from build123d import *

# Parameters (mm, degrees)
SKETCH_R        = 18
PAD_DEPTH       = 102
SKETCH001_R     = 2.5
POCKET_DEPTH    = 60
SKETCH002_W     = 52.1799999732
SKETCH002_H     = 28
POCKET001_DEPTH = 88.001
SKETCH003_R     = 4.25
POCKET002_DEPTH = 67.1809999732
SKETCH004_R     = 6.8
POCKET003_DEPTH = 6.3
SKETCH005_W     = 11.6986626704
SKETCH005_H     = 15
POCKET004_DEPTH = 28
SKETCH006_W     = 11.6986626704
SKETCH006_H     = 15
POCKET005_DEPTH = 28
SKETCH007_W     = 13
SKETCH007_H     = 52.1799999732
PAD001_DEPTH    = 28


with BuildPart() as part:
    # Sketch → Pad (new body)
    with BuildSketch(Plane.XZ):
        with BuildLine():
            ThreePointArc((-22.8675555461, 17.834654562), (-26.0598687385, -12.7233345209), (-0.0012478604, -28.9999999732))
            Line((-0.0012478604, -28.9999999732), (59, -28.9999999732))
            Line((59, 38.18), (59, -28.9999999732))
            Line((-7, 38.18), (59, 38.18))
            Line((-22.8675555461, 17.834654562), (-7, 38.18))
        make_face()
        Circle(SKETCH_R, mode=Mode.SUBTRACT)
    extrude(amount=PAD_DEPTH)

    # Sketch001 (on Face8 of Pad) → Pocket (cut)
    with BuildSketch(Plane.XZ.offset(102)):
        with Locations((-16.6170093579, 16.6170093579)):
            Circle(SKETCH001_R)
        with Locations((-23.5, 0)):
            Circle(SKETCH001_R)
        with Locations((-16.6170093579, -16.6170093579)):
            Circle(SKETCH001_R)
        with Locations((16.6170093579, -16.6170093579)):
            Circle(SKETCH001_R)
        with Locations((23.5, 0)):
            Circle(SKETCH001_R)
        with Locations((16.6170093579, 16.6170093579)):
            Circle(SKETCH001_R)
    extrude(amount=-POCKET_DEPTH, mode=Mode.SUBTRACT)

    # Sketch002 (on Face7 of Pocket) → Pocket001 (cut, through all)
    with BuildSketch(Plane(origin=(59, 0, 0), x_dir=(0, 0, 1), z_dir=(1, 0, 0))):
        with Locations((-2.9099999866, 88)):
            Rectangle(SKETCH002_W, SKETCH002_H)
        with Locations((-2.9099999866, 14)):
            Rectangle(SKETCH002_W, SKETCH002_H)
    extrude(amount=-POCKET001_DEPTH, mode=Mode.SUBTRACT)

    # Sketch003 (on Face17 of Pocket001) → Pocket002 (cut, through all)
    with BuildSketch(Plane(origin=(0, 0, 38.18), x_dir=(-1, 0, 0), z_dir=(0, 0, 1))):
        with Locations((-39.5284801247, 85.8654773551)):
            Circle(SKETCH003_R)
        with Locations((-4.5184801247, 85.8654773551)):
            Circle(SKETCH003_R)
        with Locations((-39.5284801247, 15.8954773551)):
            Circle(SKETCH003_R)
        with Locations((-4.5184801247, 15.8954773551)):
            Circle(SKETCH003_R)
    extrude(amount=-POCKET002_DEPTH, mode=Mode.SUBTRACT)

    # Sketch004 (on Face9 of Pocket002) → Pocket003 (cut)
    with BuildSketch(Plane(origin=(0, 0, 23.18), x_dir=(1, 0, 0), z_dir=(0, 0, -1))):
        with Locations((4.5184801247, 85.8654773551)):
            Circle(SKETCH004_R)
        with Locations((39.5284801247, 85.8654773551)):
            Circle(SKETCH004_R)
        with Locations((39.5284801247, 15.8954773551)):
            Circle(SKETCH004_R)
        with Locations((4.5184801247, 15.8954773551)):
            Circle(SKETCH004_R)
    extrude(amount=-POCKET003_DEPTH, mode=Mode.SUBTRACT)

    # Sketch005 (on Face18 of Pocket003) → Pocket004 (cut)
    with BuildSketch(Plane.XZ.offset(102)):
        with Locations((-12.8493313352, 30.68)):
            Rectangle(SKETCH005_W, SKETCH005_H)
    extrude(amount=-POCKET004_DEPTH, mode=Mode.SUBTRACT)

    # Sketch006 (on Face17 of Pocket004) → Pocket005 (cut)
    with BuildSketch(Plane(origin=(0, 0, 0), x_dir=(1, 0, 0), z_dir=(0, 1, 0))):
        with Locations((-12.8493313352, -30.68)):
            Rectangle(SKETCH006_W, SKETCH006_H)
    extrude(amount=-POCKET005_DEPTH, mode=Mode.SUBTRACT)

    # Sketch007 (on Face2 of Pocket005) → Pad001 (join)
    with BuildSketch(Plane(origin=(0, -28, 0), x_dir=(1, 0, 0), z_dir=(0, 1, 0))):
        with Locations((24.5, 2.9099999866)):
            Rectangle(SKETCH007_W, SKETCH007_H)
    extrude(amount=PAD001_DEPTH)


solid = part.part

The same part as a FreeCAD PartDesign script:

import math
import FreeCAD as App
import Part
import Sketcher
Q = App.Units.Quantity


def add_polygon(sketch, points):
    """Adds a closed chain of lines whose ends are joined by coincident constraints."""
    first, n = sketch.GeometryCount, len(points)
    for a, b in zip(points, points[1:] + points[:1]):
        sketch.addGeometry(Part.LineSegment(App.Vector(*a, 0), App.Vector(*b, 0)), False)
    for i in range(n):
        sketch.addConstraint(Sketcher.Constraint("Coincident", first + i, 2, first + (i + 1) % n, 1))

doc = App.newDocument("Part")
body = doc.addObject("PartDesign::Body", "Body")

# Sketch on XZ plane
sketch1 = doc.addObject("Sketcher::SketchObject", "Sketch")
body.addObject(sketch1)
sketch1.AttachmentSupport = (doc.XZ_Plane, [""])
sketch1.MapMode = "FlatFace"
sketch1.addGeometry([
    Part.ArcOfCircle(Part.Circle(App.Vector(0, 0, 0), App.Vector(0, 0, 1), 29), math.radians(142.048945), math.radians(269.997535)),  # 0
    Part.LineSegment(App.Vector(-0.001248, -29, 0), App.Vector(59, -29, 0)),  # 1
    Part.LineSegment(App.Vector(59, -29, 0), App.Vector(59, 38.18, 0)),  # 2
    Part.LineSegment(App.Vector(59, 38.18, 0), App.Vector(-7, 38.18, 0)),  # 3
    Part.LineSegment(App.Vector(-7, 38.18, 0), App.Vector(-22.867556, 17.834655, 0)),  # 4
    Part.Circle(App.Vector(0, 0, 0), App.Vector(0, 0, 1), 18),  # 5
], False)
sketch1.addConstraint([
    Sketcher.Constraint("Coincident", 0, 2, 1, 1),
    Sketcher.Constraint("Coincident", 1, 2, 2, 1),
    Sketcher.Constraint("Coincident", 2, 2, 3, 1),
    Sketcher.Constraint("Coincident", 3, 2, 4, 1),
    Sketcher.Constraint("Tangent", 4, 2, 0, 1),
    Sketcher.Constraint("Horizontal", 1),
    Sketcher.Constraint("Vertical", 2),
    Sketcher.Constraint("Horizontal", 3),
    Sketcher.Constraint("Coincident", 0, 3, -1, 1),
    Sketcher.Constraint("Coincident", 5, 3, -1, 1),
    Sketcher.Constraint("Diameter", 5, Q("36 mm")),
    Sketcher.Constraint("Radius", 0, Q("29 mm")),
    Sketcher.Constraint("DistanceX", 3, 2, 3, 1, Q("66 mm")),
    Sketcher.Constraint("DistanceX", -1, 1, 1, 2, Q("59 mm")),
    Sketcher.Constraint("DistanceY", 2, 1, 2, 2, Q("67.18 mm")),
    Sketcher.Constraint("DistanceX", 1, 1, 1, 2, Q("59.001248 mm")),
])
pad1 = doc.addObject("PartDesign::Pad", "Pad")
body.addObject(pad1)
pad1.Profile = sketch1
pad1.Length = 102

# Sketch on XZ plane
sketch2 = doc.addObject("Sketcher::SketchObject", "Sketch001")
body.addObject(sketch2)
sketch2.AttachmentSupport = (doc.XZ_Plane, [""])
sketch2.MapMode = "FlatFace"
sketch2.AttachmentOffset = App.Placement(App.Vector(0, 0, 102), App.Rotation())
sketch2.addGeometry([
    Part.Circle(App.Vector(-16.617009, 16.617009, 0), App.Vector(0, 0, 1), 2.5),  # 0
    Part.Circle(App.Vector(-23.5, 0, 0), App.Vector(0, 0, 1), 2.5),  # 1
    Part.Circle(App.Vector(-16.617009, -16.617009, 0), App.Vector(0, 0, 1), 2.5),  # 2
    Part.Circle(App.Vector(16.617009, -16.617009, 0), App.Vector(0, 0, 1), 2.5),  # 3
    Part.Circle(App.Vector(23.5, 0, 0), App.Vector(0, 0, 1), 2.5),  # 4
    Part.Circle(App.Vector(16.617009, 16.617009, 0), App.Vector(0, 0, 1), 2.5),  # 5
], False)
sketch2.addConstraint([
    Sketcher.Constraint("Equal", 0, 1),
    Sketcher.Constraint("Equal", 1, 2),
    Sketcher.Constraint("Equal", 2, 3),
    Sketcher.Constraint("Equal", 3, 4),
    Sketcher.Constraint("Equal", 4, 5),
    Sketcher.Constraint("Symmetric", 0, 3, 3, 3, -1, 1),
    Sketcher.Constraint("Symmetric", 1, 3, 4, 3, -1, 1),
    Sketcher.Constraint("Symmetric", 2, 3, 5, 3, -1, 1),
    Sketcher.Constraint("Symmetric", 2, 3, 3, 3, -2),
    Sketcher.Constraint("PointOnObject", 1, 3, -1),
    Sketcher.Constraint("Diameter", 0, Q("5 mm")),
    Sketcher.Constraint("DistanceX", 1, 3, 4, 3, Q("47 mm")),
    Sketcher.Constraint("DistanceX", 0, 3, -1, 1, Q("16.617009 mm")),
    Sketcher.Constraint("DistanceY", -1, 1, 0, 3, Q("16.617009 mm")),
])
pocket1 = doc.addObject("PartDesign::Pocket", "Pocket")
body.addObject(pocket1)
pocket1.Profile = sketch2
pocket1.Length = 60

# Sketch on YZ plane
sketch3 = doc.addObject("Sketcher::SketchObject", "Sketch002")
body.addObject(sketch3)
sketch3.AttachmentSupport = (doc.YZ_Plane, [""])
sketch3.MapMode = "FlatFace"
sketch3.AttachmentOffset = App.Placement(App.Vector(0, 0, 59), App.Rotation())
add_polygon(sketch3, [(-102, -29), (-74, -29), (-74, 23.18), (-102, 23.18)])  # lines 0-3
add_polygon(sketch3, [(-28, -29), (0, -29), (0, 23.18), (-28, 23.18)])  # lines 4-7
sketch3.addConstraint([
    Sketcher.Constraint("Horizontal", 0),
    Sketcher.Constraint("Vertical", 1),
    Sketcher.Constraint("Horizontal", 2),
    Sketcher.Constraint("Vertical", 3),
    Sketcher.Constraint("Horizontal", 4),
    Sketcher.Constraint("Vertical", 5),
    Sketcher.Constraint("Horizontal", 6),
    Sketcher.Constraint("Vertical", 7),
    Sketcher.Constraint("PointOnObject", 4, 2, -2),
    Sketcher.Constraint("Horizontal", 3, 2, 4, 2),
    Sketcher.Constraint("Horizontal", 2, 2, 5, 2),
    Sketcher.Constraint("Equal", 2, 4),
    Sketcher.Constraint("DistanceX", 0, 1, 0, 2, Q("28 mm")),
    Sketcher.Constraint("DistanceX", 0, 2, -1, 1, Q("74 mm")),
    Sketcher.Constraint("DistanceY", 0, 2, -1, 1, Q("29 mm")),
    Sketcher.Constraint("DistanceY", 1, 1, 1, 2, Q("52.18 mm")),
])
pocket2 = doc.addObject("PartDesign::Pocket", "Pocket001")
body.addObject(pocket2)
pocket2.Profile = sketch3
pocket2.Type = "ThroughAll"

# Sketch on XY plane
sketch4 = doc.addObject("Sketcher::SketchObject", "Sketch003")
body.addObject(sketch4)
sketch4.AttachmentSupport = (doc.XY_Plane, [""])
sketch4.MapMode = "FlatFace"
sketch4.AttachmentOffset = App.Placement(App.Vector(0, 0, 38.18), App.Rotation())
sketch4.addGeometry([
    Part.Circle(App.Vector(39.52848, -85.865477, 0), App.Vector(0, 0, 1), 4.25),
    Part.Circle(App.Vector(4.51848, -85.865477, 0), App.Vector(0, 0, 1), 4.25),
    Part.Circle(App.Vector(39.52848, -15.895477, 0), App.Vector(0, 0, 1), 4.25),
    Part.Circle(App.Vector(4.51848, -15.895477, 0), App.Vector(0, 0, 1), 4.25),
], False)
sketch4.addConstraint([
    Sketcher.Constraint("Equal", 0, 1),
    Sketcher.Constraint("Equal", 1, 2),
    Sketcher.Constraint("Equal", 2, 3),
    Sketcher.Constraint("Horizontal", 0, 3, 1, 3),
    Sketcher.Constraint("Horizontal", 2, 3, 3, 3),
    Sketcher.Constraint("Vertical", 0, 3, 2, 3),
    Sketcher.Constraint("Vertical", 1, 3, 3, 3),
    Sketcher.Constraint("Diameter", 0, Q("8.5 mm")),
    Sketcher.Constraint("DistanceX", 1, 3, 0, 3, Q("35.01 mm")),
    Sketcher.Constraint("DistanceY", 0, 3, 2, 3, Q("69.97 mm")),
    Sketcher.Constraint("DistanceX", -1, 1, 0, 3, Q("39.52848 mm")),
    Sketcher.Constraint("DistanceY", 0, 3, -1, 1, Q("85.865477 mm")),
])
pocket3 = doc.addObject("PartDesign::Pocket", "Pocket002")
body.addObject(pocket3)
pocket3.Profile = sketch4
pocket3.Type = "ThroughAll"

# Sketch on XY plane
sketch5 = doc.addObject("Sketcher::SketchObject", "Sketch004")
body.addObject(sketch5)
sketch5.AttachmentSupport = (doc.XY_Plane, [""])
sketch5.MapMode = "FlatFace"
sketch5.AttachmentOffset = App.Placement(App.Vector(0, 0, 23.18), App.Rotation())
sketch5.addGeometry([
    Part.Circle(App.Vector(4.51848, -85.865477, 0), App.Vector(0, 0, 1), 6.8),
    Part.Circle(App.Vector(39.52848, -85.865477, 0), App.Vector(0, 0, 1), 6.8),
    Part.Circle(App.Vector(39.52848, -15.895477, 0), App.Vector(0, 0, 1), 6.8),
    Part.Circle(App.Vector(4.51848, -15.895477, 0), App.Vector(0, 0, 1), 6.8),
], False)
sketch5.addConstraint([
    Sketcher.Constraint("Equal", 0, 1),
    Sketcher.Constraint("Equal", 1, 2),
    Sketcher.Constraint("Equal", 2, 3),
    Sketcher.Constraint("Horizontal", 0, 3, 1, 3),
    Sketcher.Constraint("Horizontal", 2, 3, 3, 3),
    Sketcher.Constraint("Vertical", 1, 3, 2, 3),
    Sketcher.Constraint("Vertical", 0, 3, 3, 3),
    Sketcher.Constraint("Diameter", 0, Q("13.6 mm")),
    Sketcher.Constraint("DistanceX", 0, 3, 1, 3, Q("35.01 mm")),
    Sketcher.Constraint("DistanceY", 1, 3, 2, 3, Q("69.97 mm")),
    Sketcher.Constraint("DistanceX", -1, 1, 0, 3, Q("4.51848 mm")),
    Sketcher.Constraint("DistanceY", 0, 3, -1, 1, Q("85.865477 mm")),
])
pocket4 = doc.addObject("PartDesign::Pocket", "Pocket003")
body.addObject(pocket4)
pocket4.Profile = sketch5
pocket4.Length = 6.3
pocket4.Reversed = True

# Sketch on XZ plane
sketch6 = doc.addObject("Sketcher::SketchObject", "Sketch005")
body.addObject(sketch6)
sketch6.AttachmentSupport = (doc.XZ_Plane, [""])
sketch6.MapMode = "FlatFace"
sketch6.AttachmentOffset = App.Placement(App.Vector(0, 0, 102), App.Rotation())
add_polygon(sketch6, [(-18.698663, 38.18), (-18.698663, 23.18), (-7, 23.18), (-7, 38.18)])  # lines 0-3
sketch6.addConstraint([
    Sketcher.Constraint("Vertical", 0),
    Sketcher.Constraint("Horizontal", 1),
    Sketcher.Constraint("Vertical", 2),
    Sketcher.Constraint("Horizontal", 3),
    Sketcher.Constraint("DistanceY", 0, 2, 0, 1, Q("15 mm")),
    Sketcher.Constraint("DistanceX", 1, 2, -1, 1, Q("7 mm")),
    Sketcher.Constraint("DistanceY", -1, 1, 0, 2, Q("23.18 mm")),
    Sketcher.Constraint("DistanceX", 1, 1, 1, 2, Q("11.698663 mm")),
])
pocket5 = doc.addObject("PartDesign::Pocket", "Pocket004")
body.addObject(pocket5)
pocket5.Profile = sketch6
pocket5.Length = 28

# Sketch on XZ plane
sketch7 = doc.addObject("Sketcher::SketchObject", "Sketch006")
body.addObject(sketch7)
sketch7.AttachmentSupport = (doc.XZ_Plane, [""])
sketch7.MapMode = "FlatFace"
add_polygon(sketch7, [(-18.698663, 23.18), (-18.698663, 38.18), (-7, 38.18), (-7, 23.18)])  # lines 0-3
sketch7.addConstraint([
    Sketcher.Constraint("Vertical", 0),
    Sketcher.Constraint("Horizontal", 1),
    Sketcher.Constraint("Vertical", 2),
    Sketcher.Constraint("Horizontal", 3),
    Sketcher.Constraint("DistanceY", 0, 1, 0, 2, Q("15 mm")),
    Sketcher.Constraint("DistanceX", 1, 2, -1, 1, Q("7 mm")),
    Sketcher.Constraint("DistanceY", -1, 1, 0, 2, Q("38.18 mm")),
    Sketcher.Constraint("DistanceX", 1, 1, 1, 2, Q("11.698663 mm")),
])
pocket6 = doc.addObject("PartDesign::Pocket", "Pocket005")
body.addObject(pocket6)
pocket6.Profile = sketch7
pocket6.Length = 28
pocket6.Reversed = True

# Sketch on XZ plane
sketch8 = doc.addObject("Sketcher::SketchObject", "Sketch007")
body.addObject(sketch8)
sketch8.AttachmentSupport = (doc.XZ_Plane, [""])
sketch8.MapMode = "FlatFace"
sketch8.AttachmentOffset = App.Placement(App.Vector(0, 0, 28), App.Rotation())
add_polygon(sketch8, [(18, -29), (18, 23.18), (31, 23.18), (31, -29)])  # lines 0-3
sketch8.addConstraint([
    Sketcher.Constraint("Vertical", 0),
    Sketcher.Constraint("Horizontal", 1),
    Sketcher.Constraint("Vertical", 2),
    Sketcher.Constraint("Horizontal", 3),
    Sketcher.Constraint("DistanceX", 1, 1, 1, 2, Q("13 mm")),
    Sketcher.Constraint("DistanceX", -1, 1, 0, 2, Q("18 mm")),
    Sketcher.Constraint("DistanceY", 2, 2, -1, 1, Q("29 mm")),
    Sketcher.Constraint("DistanceY", 0, 1, 0, 2, Q("52.18 mm")),
])
pad2 = doc.addObject("PartDesign::Pad", "Pad001")
body.addObject(pad2)
pad2.Profile = sketch8
pad2.Length = 28
pad2.Reversed = True

doc.recompute()
